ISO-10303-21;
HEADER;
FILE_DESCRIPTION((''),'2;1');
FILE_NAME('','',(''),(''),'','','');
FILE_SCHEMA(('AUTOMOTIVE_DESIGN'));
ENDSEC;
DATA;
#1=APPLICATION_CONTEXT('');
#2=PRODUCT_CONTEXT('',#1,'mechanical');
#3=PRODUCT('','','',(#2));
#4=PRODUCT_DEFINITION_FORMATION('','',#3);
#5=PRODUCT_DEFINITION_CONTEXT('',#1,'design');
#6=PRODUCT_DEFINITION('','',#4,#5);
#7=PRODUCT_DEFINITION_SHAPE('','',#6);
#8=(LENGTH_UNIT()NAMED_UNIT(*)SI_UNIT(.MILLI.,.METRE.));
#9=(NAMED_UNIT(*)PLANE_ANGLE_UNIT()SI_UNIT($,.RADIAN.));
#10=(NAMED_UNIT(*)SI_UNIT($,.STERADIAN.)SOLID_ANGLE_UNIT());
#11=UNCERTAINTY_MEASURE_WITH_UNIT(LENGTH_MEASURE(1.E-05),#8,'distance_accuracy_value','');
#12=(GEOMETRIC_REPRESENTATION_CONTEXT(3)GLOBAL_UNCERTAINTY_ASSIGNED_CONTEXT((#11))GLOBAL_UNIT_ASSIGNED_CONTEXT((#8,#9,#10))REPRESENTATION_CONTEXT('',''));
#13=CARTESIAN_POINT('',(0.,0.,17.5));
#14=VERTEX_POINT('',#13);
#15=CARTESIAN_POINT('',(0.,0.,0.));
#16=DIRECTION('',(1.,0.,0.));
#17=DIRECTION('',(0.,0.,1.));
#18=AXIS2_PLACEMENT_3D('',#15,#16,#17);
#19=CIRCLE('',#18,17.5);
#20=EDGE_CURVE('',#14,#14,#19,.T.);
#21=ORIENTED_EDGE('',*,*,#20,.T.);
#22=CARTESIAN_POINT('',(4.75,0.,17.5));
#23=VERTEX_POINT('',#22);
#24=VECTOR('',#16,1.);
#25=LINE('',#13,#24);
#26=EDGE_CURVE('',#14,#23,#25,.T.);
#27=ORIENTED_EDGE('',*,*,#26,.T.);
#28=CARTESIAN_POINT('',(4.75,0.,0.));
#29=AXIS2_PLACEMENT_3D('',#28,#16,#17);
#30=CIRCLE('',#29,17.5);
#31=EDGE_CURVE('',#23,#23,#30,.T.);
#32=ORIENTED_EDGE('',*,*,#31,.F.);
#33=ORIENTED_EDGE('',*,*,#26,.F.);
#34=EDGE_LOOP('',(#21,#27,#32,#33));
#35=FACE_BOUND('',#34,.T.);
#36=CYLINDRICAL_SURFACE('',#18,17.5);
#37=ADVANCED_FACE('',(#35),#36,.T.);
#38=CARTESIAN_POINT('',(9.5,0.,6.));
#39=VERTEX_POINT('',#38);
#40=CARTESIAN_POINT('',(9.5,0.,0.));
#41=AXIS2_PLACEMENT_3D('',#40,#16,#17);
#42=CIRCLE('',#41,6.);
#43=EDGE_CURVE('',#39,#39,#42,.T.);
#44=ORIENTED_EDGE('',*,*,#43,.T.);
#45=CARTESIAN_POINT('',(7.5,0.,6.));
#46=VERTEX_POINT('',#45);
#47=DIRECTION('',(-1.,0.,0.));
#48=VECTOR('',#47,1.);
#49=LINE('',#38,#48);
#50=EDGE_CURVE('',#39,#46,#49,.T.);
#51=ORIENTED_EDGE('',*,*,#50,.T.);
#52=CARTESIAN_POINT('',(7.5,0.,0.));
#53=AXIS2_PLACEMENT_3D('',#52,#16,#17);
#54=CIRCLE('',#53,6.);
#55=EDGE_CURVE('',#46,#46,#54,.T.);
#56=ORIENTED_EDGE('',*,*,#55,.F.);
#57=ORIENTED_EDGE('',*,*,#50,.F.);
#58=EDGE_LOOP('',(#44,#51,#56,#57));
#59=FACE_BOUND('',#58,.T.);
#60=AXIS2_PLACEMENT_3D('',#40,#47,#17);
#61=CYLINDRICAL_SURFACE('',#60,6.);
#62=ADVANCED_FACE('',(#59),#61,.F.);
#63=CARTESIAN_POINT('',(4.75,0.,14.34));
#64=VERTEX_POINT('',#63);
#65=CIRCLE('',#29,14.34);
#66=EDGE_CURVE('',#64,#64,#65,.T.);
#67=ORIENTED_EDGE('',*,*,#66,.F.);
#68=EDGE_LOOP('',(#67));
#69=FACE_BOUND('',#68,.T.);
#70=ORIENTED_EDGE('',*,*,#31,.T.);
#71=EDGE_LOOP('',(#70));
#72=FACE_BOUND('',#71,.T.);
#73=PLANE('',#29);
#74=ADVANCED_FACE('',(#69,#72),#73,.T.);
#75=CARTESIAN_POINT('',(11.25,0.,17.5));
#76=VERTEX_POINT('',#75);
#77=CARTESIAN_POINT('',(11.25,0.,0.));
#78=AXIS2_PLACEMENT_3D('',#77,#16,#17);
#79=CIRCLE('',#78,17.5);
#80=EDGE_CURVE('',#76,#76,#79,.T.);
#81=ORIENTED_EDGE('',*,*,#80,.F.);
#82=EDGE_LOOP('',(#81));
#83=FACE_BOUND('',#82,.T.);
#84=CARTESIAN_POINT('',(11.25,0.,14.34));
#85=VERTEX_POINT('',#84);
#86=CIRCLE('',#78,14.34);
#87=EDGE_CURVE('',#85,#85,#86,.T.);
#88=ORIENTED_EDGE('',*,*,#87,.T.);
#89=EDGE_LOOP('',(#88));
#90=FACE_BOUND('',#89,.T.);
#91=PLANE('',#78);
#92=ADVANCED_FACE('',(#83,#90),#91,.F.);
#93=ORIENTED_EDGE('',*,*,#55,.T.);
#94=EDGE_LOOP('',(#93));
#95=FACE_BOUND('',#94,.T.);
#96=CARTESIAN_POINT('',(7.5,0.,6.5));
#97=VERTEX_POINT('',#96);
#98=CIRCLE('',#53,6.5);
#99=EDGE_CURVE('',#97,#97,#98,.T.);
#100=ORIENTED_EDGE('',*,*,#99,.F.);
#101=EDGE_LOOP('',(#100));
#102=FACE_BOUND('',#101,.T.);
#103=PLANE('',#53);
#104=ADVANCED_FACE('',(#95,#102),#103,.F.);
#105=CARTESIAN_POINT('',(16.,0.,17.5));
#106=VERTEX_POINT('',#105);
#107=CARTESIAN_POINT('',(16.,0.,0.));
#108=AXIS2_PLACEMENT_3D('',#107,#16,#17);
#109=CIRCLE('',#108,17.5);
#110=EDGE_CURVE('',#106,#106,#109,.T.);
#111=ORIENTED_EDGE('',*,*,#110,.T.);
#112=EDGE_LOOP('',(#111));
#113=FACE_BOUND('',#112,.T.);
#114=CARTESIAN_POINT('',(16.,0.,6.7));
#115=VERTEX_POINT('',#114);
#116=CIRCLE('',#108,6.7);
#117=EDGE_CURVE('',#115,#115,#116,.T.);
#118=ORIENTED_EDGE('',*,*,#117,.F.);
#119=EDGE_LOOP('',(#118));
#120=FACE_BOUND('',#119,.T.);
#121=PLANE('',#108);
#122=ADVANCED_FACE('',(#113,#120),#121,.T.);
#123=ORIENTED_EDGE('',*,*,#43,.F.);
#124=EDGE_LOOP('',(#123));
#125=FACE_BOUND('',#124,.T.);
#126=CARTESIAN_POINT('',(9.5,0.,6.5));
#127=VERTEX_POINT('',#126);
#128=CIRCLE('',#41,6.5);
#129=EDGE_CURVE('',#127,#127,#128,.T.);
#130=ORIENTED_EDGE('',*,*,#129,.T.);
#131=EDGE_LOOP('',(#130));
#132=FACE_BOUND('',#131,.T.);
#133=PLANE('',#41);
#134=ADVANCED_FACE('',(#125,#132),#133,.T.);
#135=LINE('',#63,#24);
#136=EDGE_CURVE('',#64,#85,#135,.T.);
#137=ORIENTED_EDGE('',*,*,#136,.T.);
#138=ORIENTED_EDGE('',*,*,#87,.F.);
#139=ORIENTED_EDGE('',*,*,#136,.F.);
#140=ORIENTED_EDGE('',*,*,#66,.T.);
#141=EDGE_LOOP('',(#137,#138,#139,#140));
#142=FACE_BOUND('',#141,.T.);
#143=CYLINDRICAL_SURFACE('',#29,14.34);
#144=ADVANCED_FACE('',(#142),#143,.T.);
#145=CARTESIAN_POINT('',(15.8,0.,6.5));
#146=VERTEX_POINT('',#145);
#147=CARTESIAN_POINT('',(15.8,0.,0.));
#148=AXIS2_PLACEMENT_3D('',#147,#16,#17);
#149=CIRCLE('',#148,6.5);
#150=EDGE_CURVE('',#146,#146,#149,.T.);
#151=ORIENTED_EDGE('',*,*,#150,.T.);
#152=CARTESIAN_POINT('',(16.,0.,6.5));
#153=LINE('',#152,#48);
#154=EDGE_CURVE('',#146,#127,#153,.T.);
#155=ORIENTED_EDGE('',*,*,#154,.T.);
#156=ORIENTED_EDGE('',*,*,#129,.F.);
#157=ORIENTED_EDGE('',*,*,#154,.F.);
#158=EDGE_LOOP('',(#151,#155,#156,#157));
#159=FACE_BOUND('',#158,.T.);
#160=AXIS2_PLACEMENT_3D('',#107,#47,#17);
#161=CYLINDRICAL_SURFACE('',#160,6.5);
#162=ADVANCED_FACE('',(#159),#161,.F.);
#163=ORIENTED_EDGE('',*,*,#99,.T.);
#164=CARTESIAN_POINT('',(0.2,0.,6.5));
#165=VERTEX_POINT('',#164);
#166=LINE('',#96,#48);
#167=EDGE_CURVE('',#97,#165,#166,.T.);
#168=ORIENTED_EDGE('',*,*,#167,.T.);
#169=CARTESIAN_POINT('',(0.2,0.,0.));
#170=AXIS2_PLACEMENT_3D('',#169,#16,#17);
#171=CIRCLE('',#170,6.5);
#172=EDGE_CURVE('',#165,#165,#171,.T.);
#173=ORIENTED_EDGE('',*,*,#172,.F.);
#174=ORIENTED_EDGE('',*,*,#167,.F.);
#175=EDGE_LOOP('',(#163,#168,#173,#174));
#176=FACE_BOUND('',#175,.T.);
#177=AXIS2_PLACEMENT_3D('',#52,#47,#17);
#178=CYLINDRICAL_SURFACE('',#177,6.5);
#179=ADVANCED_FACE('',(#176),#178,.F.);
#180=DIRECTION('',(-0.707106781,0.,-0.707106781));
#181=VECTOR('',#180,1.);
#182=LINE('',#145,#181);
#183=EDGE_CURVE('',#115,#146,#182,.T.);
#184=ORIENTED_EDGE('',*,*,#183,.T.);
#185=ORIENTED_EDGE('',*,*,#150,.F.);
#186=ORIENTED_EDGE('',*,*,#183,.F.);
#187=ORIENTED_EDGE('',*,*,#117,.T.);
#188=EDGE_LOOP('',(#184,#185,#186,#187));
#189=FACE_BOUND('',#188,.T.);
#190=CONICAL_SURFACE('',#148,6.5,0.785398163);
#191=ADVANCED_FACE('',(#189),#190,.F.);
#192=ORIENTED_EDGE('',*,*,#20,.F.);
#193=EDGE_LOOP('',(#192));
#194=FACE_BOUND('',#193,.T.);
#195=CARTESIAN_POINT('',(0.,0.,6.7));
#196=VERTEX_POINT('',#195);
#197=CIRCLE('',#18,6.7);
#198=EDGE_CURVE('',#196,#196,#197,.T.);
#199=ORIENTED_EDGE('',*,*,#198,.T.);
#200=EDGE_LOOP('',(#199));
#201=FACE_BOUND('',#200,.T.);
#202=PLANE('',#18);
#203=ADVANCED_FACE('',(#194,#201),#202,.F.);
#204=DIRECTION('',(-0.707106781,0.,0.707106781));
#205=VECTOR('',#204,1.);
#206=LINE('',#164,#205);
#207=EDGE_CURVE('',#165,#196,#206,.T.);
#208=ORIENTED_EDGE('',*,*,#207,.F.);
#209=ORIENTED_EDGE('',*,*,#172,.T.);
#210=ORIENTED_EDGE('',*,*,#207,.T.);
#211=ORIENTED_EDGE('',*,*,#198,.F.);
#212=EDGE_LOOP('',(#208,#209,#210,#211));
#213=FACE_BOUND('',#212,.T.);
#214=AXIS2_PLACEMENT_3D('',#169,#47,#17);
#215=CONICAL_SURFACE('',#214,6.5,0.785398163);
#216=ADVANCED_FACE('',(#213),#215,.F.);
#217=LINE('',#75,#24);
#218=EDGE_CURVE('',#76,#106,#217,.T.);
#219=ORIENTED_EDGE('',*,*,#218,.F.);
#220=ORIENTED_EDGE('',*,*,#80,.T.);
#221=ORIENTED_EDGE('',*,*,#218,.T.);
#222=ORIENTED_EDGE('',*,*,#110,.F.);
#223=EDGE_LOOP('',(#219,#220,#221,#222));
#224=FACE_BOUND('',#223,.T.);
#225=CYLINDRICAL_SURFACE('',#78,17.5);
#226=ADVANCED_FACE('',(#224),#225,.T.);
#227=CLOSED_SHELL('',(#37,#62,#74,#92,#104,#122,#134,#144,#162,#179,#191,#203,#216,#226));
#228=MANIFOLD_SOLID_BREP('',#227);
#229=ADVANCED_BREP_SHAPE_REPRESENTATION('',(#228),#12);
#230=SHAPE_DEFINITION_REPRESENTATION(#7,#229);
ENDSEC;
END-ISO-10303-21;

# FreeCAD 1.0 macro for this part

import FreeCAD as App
import Part
import Sketcher
Q = App.Units.Quantity


def edges_at(feature, points):
    """Names of the edges that pass closest to the given points."""
    edges = feature.Shape.Edges
    near = lambda p: min(range(len(edges)), key=lambda i: edges[i].distToShape(Part.Vertex(*p))[0])
    return sorted({f"Edge{near(p) + 1}" for p in points})


def add_polygon(sketch, points):
    """Adds a closed chain of lines whose ends are joined by coincident constraints."""
    first, n = sketch.GeometryCount, len(points)
    for a, b in zip(points, points[1:] + points[:1]):
        sketch.addGeometry(Part.LineSegment(App.Vector(*a, 0), App.Vector(*b, 0)), False)
    for i in range(n):
        sketch.addConstraint(Sketcher.Constraint("Coincident", first + i, 2, first + (i + 1) % n, 1))

doc = App.newDocument("Part")
body = doc.addObject("PartDesign::Body", "Body")

sketch1 = body.newObject("Sketcher::SketchObject", "Sketch")
sketch1.AttachmentSupport = (doc.getObject("XZ_Plane"), [""])
sketch1.MapMode = "FlatFace"
add_polygon(sketch1, [(16, 17.5), (11.2, 17.5), (11.2, 14.3), (4.8, 14.3), (4.8, 17.5), (0, 17.5), (0, 6.5), (7.5, 6.5), (7.5, 6), (9.5, 6), (9.5, 6.5), (16, 6.5)])
sketch1.addConstraint(Sketcher.Constraint("Horizontal", 0))
sketch1.addConstraint(Sketcher.Constraint("Vertical", 1))
sketch1.addConstraint(Sketcher.Constraint("Horizontal", 2))
sketch1.addConstraint(Sketcher.Constraint("Vertical", 3))
sketch1.addConstraint(Sketcher.Constraint("Horizontal", 4))
sketch1.addConstraint(Sketcher.Constraint("Vertical", 5))
sketch1.addConstraint(Sketcher.Constraint("Horizontal", 6))
sketch1.addConstraint(Sketcher.Constraint("Vertical", 7))
sketch1.addConstraint(Sketcher.Constraint("Horizontal", 8))
sketch1.addConstraint(Sketcher.Constraint("Vertical", 9))
sketch1.addConstraint(Sketcher.Constraint("Horizontal", 10))
sketch1.addConstraint(Sketcher.Constraint("Vertical", 11))
sketch1.addConstraint(Sketcher.Constraint("PointOnObject", 4, 2, -2))
sketch1.addConstraint(Sketcher.Constraint("Horizontal", 0, 2, 3, 2))
sketch1.addConstraint(Sketcher.Constraint("Horizontal", 6, 2, 9, 2))
sketch1.addConstraint(Sketcher.Constraint("Equal", 0, 4))
sketch1.addConstraint(Sketcher.Constraint("Equal", 2, 10))
sketch1.addConstraint(Sketcher.Constraint("DistanceX", 8, 1, 8, 2, Q("2 mm")))
sketch1.addConstraint(Sketcher.Constraint("DistanceY", 5, 2, 5, 1, Q("11 mm")))
sketch1.addConstraint(Sketcher.Constraint("DistanceX", 2, 2, 2, 1, Q("6.5 mm")))
sketch1.addConstraint(Sketcher.Constraint("DistanceX", 6, 1, 6, 2, Q("7.5 mm")))
sketch1.addConstraint(Sketcher.Constraint("DistanceY", 7, 2, 7, 1, Q("0.5 mm")))
sketch1.addConstraint(Sketcher.Constraint("DistanceY", -1, 1, 7, 2, Q("6 mm")))
sketch1.addConstraint(Sketcher.Constraint("DistanceY", 1, 2, 1, 1, Q("3.16 mm")))
revolution = body.newObject("PartDesign::Revolution", "Revolution")
revolution.Profile = sketch1
revolution.ReferenceAxis = (sketch1, ["H_Axis"])
revolution.Angle = 360
doc.recompute()

chamfer = body.newObject("PartDesign::Chamfer", "Chamfer")
chamfer.Base = (revolution, edges_at(revolution, [(16, 0, -6.5), (0, 0, -6.5)]))
chamfer.Size = 0.2

doc.recompute()
